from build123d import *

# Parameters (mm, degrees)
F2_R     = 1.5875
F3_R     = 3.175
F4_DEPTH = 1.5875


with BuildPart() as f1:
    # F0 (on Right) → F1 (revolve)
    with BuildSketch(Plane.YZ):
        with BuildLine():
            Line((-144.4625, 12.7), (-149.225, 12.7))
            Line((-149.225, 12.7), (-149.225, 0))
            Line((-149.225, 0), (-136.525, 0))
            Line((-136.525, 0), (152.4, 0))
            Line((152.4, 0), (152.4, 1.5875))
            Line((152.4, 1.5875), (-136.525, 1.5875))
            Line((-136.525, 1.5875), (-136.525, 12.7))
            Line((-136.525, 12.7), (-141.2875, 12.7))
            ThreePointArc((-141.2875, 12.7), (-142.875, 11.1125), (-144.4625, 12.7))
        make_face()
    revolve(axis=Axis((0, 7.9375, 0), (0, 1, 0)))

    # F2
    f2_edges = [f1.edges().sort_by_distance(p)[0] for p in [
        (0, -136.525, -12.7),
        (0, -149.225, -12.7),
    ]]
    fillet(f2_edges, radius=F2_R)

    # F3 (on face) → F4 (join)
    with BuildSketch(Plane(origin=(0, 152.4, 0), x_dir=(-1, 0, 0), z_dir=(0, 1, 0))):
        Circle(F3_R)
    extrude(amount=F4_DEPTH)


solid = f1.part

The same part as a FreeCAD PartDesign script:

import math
import FreeCAD as App
import Part
import Sketcher

V = App.Vector
Q = App.Units.Quantity


def edges_at(feature, points):
    """Names of the edges that pass closest to the given points."""
    edges = feature.Shape.Edges
    near = lambda p: min(range(len(edges)), key=lambda i: edges[i].distToShape(Part.Vertex(*p))[0])
    return sorted({f"Edge{near(p) + 1}" for p in points})

doc = App.newDocument("Part")
body = doc.addObject("PartDesign::Body", "Body")

# Sketch on YZ plane
sketch1 = body.newObject("Sketcher::SketchObject", "Sketch")
sketch1.AttachmentSupport = (doc.getObject("YZ_Plane"), [""])
sketch1.MapMode = "FlatFace"
sketch1.addGeometry(Part.LineSegment(V(-144.4625, 12.7, 0), V(-149.225, 12.7, 0)), False)
sketch1.addGeometry(Part.LineSegment(V(-149.225, 12.7, 0), V(-149.225, 0, 0)), False)
sketch1.addGeometry(Part.LineSegment(V(-149.225, 0, 0), V(152.4, 0, 0)), False)
sketch1.addGeometry(Part.LineSegment(V(152.4, 0, 0), V(152.4, 1.5875, 0)), False)
sketch1.addGeometry(Part.LineSegment(V(152.4, 1.5875, 0), V(-136.525, 1.5875, 0)), False)
sketch1.addGeometry(Part.LineSegment(V(-136.525, 1.5875, 0), V(-136.525, 12.7, 0)), False)
sketch1.addGeometry(Part.LineSegment(V(-136.525, 12.7, 0), V(-141.2875, 12.7, 0)), False)
sketch1.addGeometry(Part.ArcOfCircle(Part.Circle(V(-142.875, 12.7, 0), V(0, 0, 1), 1.5875), math.radians(180), math.radians(360)), False)
sketch1.addConstraint(Sketcher.Constraint("Coincident", 0, 2, 1, 1))
sketch1.addConstraint(Sketcher.Constraint("Coincident", 1, 2, 2, 1))
sketch1.addConstraint(Sketcher.Constraint("Coincident", 2, 2, 3, 1))
sketch1.addConstraint(Sketcher.Constraint("Coincident", 3, 2, 4, 1))
sketch1.addConstraint(Sketcher.Constraint("Coincident", 4, 2, 5, 1))
sketch1.addConstraint(Sketcher.Constraint("Coincident", 5, 2, 6, 1))
sketch1.addConstraint(Sketcher.Constraint("Coincident", 6, 2, 7, 2))
sketch1.addConstraint(Sketcher.Constraint("Coincident", 7, 1, 0, 1))
sketch1.addConstraint(Sketcher.Constraint("Horizontal", 0))
sketch1.addConstraint(Sketcher.Constraint("Vertical", 1))
sketch1.addConstraint(Sketcher.Constraint("Horizontal", 2))
sketch1.addConstraint(Sketcher.Constraint("Vertical", 3))
sketch1.addConstraint(Sketcher.Constraint("Horizontal", 4))
sketch1.addConstraint(Sketcher.Constraint("Vertical", 5))
sketch1.addConstraint(Sketcher.Constraint("Horizontal", 6))
sketch1.addConstraint(Sketcher.Constraint("PointOnObject", 1, 2, -1))
sketch1.addConstraint(Sketcher.Constraint("Horizontal", 7, 3, 0, 2))
sketch1.addConstraint(Sketcher.Constraint("Horizontal", 0, 2, 5, 2))
sketch1.addConstraint(Sketcher.Constraint("Equal", 0, 6))
sketch1.addConstraint(Sketcher.Constraint("DistanceY", 1, 2, 1, 1, Q("0.5 in")))
sketch1.addConstraint(Sketcher.Constraint("DistanceX", -1, 1, 2, 2, Q("6 in")))
sketch1.addConstraint(Sketcher.Constraint("Radius", 7, Q("0.0625 in")))
sketch1.addConstraint(Sketcher.Constraint("DistanceX", 1, 2, 4, 2, Q("0.5 in")))
sketch1.addConstraint(Sketcher.Constraint("DistanceX", 2, 1, 2, 2, Q("11.875 in")))
sketch1.addConstraint(Sketcher.Constraint("DistanceY", 3, 1, 3, 2, Q("0.0625 in")))
revolution = body.newObject("PartDesign::Revolution", "Revolution")
revolution.Profile = sketch1
revolution.ReferenceAxis = (sketch1, ["H_Axis"])
revolution.Angle = 360
doc.recompute()

fillet = body.newObject("PartDesign::Fillet", "Fillet")
fillet.Base = (revolution, edges_at(revolution, [(0, -136.525, -12.7), (0, -149.225, -12.7)]))
fillet.Radius = Q("0.0625 in")

# Sketch on XZ plane
sketch2 = body.newObject("Sketcher::SketchObject", "Sketch001")
sketch2.AttachmentSupport = (doc.getObject("XZ_Plane"), [""])
sketch2.MapMode = "FlatFace"
sketch2.AttachmentOffset = App.Placement(V(0, 0, -6 * 25.4), App.Rotation())
sketch2.addGeometry(Part.Circle(V(0, 0, 0), V(0, 0, 1), 3.175), False)
sketch2.addConstraint(Sketcher.Constraint("Coincident", 0, 3, -1, 1))
sketch2.addConstraint(Sketcher.Constraint("Diameter", 0, Q("0.25 in")))
pad1 = body.newObject("PartDesign::Pad", "Pad")
pad1.Profile = sketch2
pad1.Length = Q("0.0625 in")
pad1.Reversed = True

doc.recompute()
